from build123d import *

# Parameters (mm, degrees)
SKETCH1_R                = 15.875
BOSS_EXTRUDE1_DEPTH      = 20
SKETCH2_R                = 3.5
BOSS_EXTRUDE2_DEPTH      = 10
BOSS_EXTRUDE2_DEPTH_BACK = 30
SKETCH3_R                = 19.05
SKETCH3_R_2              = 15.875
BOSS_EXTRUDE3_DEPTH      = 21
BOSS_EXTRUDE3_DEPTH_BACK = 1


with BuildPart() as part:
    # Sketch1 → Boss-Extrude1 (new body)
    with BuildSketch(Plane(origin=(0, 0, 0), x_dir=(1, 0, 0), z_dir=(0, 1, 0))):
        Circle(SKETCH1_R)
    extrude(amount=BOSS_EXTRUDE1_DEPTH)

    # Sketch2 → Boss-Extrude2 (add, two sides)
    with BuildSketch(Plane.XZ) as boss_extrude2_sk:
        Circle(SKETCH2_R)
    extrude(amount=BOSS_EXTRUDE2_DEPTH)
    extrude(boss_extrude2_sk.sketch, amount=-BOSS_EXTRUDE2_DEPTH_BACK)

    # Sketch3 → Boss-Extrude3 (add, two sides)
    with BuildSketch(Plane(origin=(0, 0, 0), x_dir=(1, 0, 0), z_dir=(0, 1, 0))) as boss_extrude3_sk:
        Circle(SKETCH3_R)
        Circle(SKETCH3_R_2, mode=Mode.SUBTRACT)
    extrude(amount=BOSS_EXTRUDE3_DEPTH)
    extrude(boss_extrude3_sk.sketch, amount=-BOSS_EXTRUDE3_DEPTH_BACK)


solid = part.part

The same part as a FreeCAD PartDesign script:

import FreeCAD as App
import Part
import Sketcher
from FreeCAD import Vector
Q = App.Units.Quantity

doc = App.newDocument("Part")
body = doc.addObject("PartDesign::Body", "Body")

sketch1 = body.newObject("Sketcher::SketchObject", "Sketch")
sketch1.AttachmentSupport = (doc.getObject("XZ_Plane"), [""])
sketch1.MapMode = "FlatFace"
sketch1.addGeometry(Part.Circle(Vector(0, 0, 0), Vector(0, 0, 1), 15.875), False)
sketch1.addConstraint([
    Sketcher.Constraint("Coincident", 0, 3, -1, 1),
    Sketcher.Constraint("Diameter", 0, Q("31.75 mm")),
])
pad1 = body.newObject("PartDesign::Pad", "Pad")
pad1.Profile = sketch1
pad1.Length = 20
pad1.Reversed = True

sketch2 = body.newObject("Sketcher::SketchObject", "Sketch001")
sketch2.AttachmentSupport = (doc.getObject("XZ_Plane"), [""])
sketch2.MapMode = "FlatFace"
sketch2.addGeometry(Part.Circle(Vector(0, 0, 0), Vector(0, 0, 1), 3.5), False)
sketch2.addConstraint([
    Sketcher.Constraint("Coincident", 0, 3, -1, 1),
    Sketcher.Constraint("Diameter", 0, Q("7 mm")),
])
pad2 = body.newObject("PartDesign::Pad", "Pad001")
pad2.Profile = sketch2
pad2.Type = "TwoLengths"
pad2.Length = 10
pad2.Length2 = 30

sketch3 = body.newObject("Sketcher::SketchObject", "Sketch002")
sketch3.AttachmentSupport = (doc.getObject("XZ_Plane"), [""])
sketch3.MapMode = "FlatFace"
sketch3.addGeometry([
    Part.Circle(Vector(0, 0, 0), Vector(0, 0, 1), 19.05),
    Part.Circle(Vector(0, 0, 0), Vector(0, 0, 1), 15.875),
], False)
sketch3.addConstraint([
    Sketcher.Constraint("Coincident", 0, 3, -1, 1),
    Sketcher.Constraint("Coincident", 1, 3, -1, 1),
    Sketcher.Constraint("Diameter", 0, Q("38.1 mm")),
    Sketcher.Constraint("Diameter", 1, Q("31.75 mm")),
])
pad3 = body.newObject("PartDesign::Pad", "Pad002")
pad3.Profile = sketch3
pad3.Type = "TwoLengths"
pad3.Length = 21
pad3.Length2 = 1
pad3.Reversed = True

doc.recompute()
